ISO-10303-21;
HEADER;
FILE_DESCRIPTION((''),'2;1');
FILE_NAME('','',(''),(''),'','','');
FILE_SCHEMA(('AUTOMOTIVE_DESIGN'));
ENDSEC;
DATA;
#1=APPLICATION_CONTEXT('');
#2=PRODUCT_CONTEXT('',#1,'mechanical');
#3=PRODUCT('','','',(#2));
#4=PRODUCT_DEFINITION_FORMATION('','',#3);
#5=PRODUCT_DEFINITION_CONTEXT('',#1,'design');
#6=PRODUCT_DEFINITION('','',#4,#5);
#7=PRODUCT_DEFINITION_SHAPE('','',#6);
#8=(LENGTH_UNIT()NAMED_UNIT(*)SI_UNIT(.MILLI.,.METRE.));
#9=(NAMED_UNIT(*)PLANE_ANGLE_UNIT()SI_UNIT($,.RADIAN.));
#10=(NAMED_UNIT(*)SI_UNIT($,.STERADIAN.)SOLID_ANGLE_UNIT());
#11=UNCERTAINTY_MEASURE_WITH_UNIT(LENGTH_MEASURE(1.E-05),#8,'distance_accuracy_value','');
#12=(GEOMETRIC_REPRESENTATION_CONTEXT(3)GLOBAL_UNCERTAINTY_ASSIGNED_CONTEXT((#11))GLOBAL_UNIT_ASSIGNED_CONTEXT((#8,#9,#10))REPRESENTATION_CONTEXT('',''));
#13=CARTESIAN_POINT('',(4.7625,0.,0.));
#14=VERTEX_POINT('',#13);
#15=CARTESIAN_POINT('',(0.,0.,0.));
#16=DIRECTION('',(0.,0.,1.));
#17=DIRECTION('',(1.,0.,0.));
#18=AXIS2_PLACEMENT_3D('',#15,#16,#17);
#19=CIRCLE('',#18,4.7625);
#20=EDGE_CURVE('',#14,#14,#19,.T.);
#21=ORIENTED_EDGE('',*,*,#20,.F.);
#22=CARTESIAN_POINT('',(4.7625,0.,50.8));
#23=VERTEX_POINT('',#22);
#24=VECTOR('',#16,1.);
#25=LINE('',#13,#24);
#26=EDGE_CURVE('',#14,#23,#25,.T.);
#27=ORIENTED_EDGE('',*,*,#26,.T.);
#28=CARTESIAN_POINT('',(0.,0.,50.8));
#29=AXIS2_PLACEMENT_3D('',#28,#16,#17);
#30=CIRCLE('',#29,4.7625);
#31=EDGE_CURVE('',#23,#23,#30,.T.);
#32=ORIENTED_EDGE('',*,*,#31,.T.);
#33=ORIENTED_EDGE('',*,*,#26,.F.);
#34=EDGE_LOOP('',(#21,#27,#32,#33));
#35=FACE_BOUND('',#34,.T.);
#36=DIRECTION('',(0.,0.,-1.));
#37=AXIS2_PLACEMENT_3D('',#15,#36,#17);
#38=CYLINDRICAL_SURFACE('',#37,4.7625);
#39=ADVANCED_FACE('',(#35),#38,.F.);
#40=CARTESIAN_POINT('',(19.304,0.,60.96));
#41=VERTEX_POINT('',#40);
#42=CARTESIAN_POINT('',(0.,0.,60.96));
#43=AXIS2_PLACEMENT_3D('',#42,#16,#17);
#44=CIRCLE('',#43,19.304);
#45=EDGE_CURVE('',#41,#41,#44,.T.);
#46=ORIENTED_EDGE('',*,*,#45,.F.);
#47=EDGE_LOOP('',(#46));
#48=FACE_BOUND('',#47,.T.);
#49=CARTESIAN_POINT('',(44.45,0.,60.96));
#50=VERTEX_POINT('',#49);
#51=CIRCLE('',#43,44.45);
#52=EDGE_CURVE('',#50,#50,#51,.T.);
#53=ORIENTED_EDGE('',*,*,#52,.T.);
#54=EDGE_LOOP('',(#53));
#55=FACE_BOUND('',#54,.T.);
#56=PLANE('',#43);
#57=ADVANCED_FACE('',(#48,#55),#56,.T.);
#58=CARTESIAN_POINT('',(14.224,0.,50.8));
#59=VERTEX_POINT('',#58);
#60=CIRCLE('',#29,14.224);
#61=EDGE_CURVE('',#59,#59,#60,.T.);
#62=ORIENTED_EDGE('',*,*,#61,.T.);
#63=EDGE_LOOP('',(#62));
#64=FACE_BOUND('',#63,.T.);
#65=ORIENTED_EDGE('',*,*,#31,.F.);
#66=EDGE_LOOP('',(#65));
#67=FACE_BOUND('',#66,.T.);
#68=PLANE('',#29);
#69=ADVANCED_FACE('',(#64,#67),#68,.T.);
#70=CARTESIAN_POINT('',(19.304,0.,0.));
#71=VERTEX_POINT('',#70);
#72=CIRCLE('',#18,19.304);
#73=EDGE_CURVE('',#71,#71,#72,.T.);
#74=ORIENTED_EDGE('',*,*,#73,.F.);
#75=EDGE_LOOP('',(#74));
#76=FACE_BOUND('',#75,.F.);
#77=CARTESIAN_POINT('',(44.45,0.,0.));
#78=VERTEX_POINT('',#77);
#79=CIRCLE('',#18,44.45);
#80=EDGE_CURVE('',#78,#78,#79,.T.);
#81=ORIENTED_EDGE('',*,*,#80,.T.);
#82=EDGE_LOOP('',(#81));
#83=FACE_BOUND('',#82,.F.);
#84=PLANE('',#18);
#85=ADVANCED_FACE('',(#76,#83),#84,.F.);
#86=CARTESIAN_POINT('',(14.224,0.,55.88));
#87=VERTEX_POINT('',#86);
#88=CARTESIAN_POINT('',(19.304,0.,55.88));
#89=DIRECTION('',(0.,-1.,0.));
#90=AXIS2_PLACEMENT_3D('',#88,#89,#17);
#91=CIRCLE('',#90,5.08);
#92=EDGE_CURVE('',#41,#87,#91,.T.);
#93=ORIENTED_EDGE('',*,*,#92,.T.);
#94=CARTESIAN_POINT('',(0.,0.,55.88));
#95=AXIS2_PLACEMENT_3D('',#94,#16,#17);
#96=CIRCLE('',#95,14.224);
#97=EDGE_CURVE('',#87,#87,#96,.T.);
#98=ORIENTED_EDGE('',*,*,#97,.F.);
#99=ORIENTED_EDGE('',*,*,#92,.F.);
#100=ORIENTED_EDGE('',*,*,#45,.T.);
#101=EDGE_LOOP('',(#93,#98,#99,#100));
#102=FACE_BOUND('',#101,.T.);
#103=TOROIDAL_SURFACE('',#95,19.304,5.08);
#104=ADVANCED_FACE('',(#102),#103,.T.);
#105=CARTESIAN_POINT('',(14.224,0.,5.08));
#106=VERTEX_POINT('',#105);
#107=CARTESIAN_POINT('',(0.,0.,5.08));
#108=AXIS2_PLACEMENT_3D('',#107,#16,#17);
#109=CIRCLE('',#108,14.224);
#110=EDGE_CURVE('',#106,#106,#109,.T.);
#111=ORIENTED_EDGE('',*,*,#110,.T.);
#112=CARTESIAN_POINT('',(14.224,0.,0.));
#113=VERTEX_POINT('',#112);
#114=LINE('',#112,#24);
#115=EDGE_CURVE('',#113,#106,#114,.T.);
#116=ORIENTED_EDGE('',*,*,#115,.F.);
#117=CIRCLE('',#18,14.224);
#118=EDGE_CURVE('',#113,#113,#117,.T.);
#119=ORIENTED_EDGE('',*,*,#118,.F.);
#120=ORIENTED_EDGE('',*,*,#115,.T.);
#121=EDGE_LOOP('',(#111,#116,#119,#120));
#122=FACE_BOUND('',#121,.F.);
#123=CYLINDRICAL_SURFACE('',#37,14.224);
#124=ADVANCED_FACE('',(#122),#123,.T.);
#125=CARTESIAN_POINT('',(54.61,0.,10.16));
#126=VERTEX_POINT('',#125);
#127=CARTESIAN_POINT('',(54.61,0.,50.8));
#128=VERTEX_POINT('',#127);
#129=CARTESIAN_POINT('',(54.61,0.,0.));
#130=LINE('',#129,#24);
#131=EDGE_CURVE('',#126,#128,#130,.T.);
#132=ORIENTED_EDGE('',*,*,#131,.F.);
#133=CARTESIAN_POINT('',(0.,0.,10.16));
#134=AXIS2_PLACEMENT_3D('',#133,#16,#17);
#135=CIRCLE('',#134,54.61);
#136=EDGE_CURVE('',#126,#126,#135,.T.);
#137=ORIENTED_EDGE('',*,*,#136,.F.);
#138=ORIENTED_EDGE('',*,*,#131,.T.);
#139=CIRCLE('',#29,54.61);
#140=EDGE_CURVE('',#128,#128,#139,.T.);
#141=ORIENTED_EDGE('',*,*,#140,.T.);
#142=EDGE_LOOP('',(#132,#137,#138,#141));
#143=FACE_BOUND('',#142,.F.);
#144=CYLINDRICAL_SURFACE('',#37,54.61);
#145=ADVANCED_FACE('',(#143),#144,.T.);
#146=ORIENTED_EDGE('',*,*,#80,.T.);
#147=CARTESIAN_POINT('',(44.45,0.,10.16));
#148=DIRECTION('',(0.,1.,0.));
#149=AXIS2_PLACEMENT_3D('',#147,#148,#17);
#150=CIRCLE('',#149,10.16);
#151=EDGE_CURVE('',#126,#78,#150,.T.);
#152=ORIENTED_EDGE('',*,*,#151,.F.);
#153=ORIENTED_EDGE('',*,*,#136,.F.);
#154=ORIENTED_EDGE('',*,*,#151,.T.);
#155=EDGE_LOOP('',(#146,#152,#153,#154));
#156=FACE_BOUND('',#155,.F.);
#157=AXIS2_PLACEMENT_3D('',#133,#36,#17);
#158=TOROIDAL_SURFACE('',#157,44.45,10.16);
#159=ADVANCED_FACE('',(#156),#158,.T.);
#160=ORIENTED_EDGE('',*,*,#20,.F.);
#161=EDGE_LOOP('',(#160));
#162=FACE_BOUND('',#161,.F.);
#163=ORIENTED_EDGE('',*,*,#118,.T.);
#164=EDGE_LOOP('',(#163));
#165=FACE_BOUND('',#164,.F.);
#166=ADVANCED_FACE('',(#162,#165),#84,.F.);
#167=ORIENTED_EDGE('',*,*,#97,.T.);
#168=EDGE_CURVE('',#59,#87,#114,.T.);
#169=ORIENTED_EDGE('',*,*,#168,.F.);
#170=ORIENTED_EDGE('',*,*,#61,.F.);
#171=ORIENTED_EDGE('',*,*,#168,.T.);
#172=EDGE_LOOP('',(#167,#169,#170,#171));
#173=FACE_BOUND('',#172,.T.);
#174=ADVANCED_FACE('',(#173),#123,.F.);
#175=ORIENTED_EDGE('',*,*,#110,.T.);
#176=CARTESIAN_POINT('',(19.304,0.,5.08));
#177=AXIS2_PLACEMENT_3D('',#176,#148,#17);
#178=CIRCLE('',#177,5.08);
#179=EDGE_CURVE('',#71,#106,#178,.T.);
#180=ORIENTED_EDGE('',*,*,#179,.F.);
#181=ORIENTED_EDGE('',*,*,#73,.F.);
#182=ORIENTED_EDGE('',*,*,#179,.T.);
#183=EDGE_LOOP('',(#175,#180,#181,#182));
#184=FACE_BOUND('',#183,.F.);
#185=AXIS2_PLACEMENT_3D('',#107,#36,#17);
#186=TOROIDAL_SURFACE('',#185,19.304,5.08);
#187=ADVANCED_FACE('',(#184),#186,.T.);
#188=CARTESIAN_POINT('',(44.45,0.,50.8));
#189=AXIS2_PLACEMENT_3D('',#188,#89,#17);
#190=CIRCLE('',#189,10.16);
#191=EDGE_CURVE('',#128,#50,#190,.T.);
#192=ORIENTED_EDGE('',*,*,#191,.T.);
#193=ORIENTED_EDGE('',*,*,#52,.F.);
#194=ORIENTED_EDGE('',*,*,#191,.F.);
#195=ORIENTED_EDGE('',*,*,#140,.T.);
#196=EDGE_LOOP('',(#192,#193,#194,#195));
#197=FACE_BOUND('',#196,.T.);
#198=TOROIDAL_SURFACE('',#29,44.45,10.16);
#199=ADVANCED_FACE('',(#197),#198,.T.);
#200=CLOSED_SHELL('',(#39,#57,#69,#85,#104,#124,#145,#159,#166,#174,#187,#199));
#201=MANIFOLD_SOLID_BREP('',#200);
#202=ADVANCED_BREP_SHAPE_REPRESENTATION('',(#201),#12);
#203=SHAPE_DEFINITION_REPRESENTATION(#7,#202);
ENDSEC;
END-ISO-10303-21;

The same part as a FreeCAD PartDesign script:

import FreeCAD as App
import Part
import Sketcher

V = App.Vector
Q = App.Units.Quantity


def edges_at(feature, points):
    """Names of the edges that pass closest to the given points."""
    edges = feature.Shape.Edges
    near = lambda p: min(range(len(edges)), key=lambda i: edges[i].distToShape(Part.Vertex(*p))[0])
    return sorted({f"Edge{near(p) + 1}" for p in points})

doc = App.newDocument("Part")
body = doc.addObject("PartDesign::Body", "Body")

# Sketch on XY plane
sketch1 = body.newObject("Sketcher::SketchObject", "Sketch")
sketch1.AttachmentSupport = (doc.getObject("XY_Plane"), [""])
sketch1.MapMode = "FlatFace"
sketch1.addGeometry([
    Part.Circle(V(0, 0, 0), V(0, 0, 1), 55),
    Part.Circle(V(0, 0, 0), V(0, 0, 1), 14),
], False)
sketch1.addConstraint([
    Sketcher.Constraint("Coincident", 0, 3, -1, 1),
    Sketcher.Constraint("Coincident", 1, 3, -1, 1),
    Sketcher.Constraint("Diameter", 0, Q("4.3 in")),
    Sketcher.Constraint("Diameter", 1, Q("1.12 in")),
])
pad1 = body.newObject("PartDesign::Pad", "Pad")
pad1.Profile = sketch1
pad1.Length = Q("2.4 in")
doc.recompute()

fillet = body.newObject("PartDesign::Fillet", "Fillet")
fillet.Base = (pad1, edges_at(pad1, [(-54.61, 0, 0), (-54.61, 0, 60.96)]))
fillet.Radius = Q("0.4 in")
doc.recompute()

fillet2 = body.newObject("PartDesign::Fillet", "Fillet001")
fillet2.Base = (fillet, edges_at(fillet, [(-14.224, 0, 60.96), (-14.224, 0, 0)]))
fillet2.Radius = Q("0.2 in")

# Sketch on XY plane
sketch2 = body.newObject("Sketcher::SketchObject", "Sketch001")
sketch2.AttachmentSupport = (doc.getObject("XY_Plane"), [""])
sketch2.MapMode = "FlatFace"
sketch2.addGeometry([
    Part.Circle(V(0, 0, 0), V(0, 0, 1), 14.2),
    Part.Circle(V(0, 0, 0), V(0, 0, 1), 4.8),
], False)
sketch2.addConstraint([
    Sketcher.Constraint("Coincident", 0, 3, -1, 1),
    Sketcher.Constraint("Coincident", 1, 3, -1, 1),
    Sketcher.Constraint("Diameter", 0, Q("1.12 in")),
    Sketcher.Constraint("Diameter", 1, Q("0.375 in")),
])
pad2 = body.newObject("PartDesign::Pad", "Pad001")
pad2.Profile = sketch2
pad2.Length = Q("2 in")

doc.recompute()
